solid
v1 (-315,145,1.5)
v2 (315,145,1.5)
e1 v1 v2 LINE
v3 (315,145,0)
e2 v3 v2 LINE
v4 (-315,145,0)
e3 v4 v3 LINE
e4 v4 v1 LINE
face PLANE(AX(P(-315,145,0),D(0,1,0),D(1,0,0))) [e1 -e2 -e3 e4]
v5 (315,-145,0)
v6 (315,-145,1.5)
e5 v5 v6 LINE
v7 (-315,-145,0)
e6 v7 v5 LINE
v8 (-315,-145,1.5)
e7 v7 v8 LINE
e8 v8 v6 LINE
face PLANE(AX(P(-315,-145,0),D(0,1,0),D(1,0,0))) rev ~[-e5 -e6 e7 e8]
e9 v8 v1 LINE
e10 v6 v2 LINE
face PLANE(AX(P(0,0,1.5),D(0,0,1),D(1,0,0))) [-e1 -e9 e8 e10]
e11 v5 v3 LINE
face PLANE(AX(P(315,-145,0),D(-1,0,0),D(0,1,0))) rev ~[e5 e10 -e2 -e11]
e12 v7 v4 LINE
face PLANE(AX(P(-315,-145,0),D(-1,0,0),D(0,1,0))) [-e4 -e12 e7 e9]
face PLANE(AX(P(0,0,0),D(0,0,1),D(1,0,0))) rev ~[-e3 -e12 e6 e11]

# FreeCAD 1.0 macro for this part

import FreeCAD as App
import Part
import Sketcher

doc = App.newDocument("Part")
body = doc.addObject("PartDesign::Body", "Body")

# Sketch on XY plane
sketch1 = body.newObject("Sketcher::SketchObject", "Sketch")
sketch1.AttachmentSupport = (doc.getObject("XY_Plane"), [""])
sketch1.MapMode = "FlatFace"
sketch1.addGeometry(Part.LineSegment(App.Vector(-315, 145, 0), App.Vector(-315, -145, 0)), False)
sketch1.addGeometry(Part.LineSegment(App.Vector(-315, -145, 0), App.Vector(315, -145, 0)), False)
sketch1.addGeometry(Part.LineSegment(App.Vector(315, -145, 0), App.Vector(315, 145, 0)), False)
sketch1.addGeometry(Part.LineSegment(App.Vector(315, 145, 0), App.Vector(-315, 145, 0)), False)
sketch1.addConstraint(Sketcher.Constraint("Coincident", 0, 2, 1, 1))
sketch1.addConstraint(Sketcher.Constraint("Coincident", 1, 2, 2, 1))
sketch1.addConstraint(Sketcher.Constraint("Coincident", 2, 2, 3, 1))
sketch1.addConstraint(Sketcher.Constraint("Coincident", 3, 2, 0, 1))
sketch1.addConstraint(Sketcher.Constraint("Vertical", 0))
sketch1.addConstraint(Sketcher.Constraint("Horizontal", 1))
sketch1.addConstraint(Sketcher.Constraint("Vertical", 2))
sketch1.addConstraint(Sketcher.Constraint("Horizontal", 3))
sketch1.addConstraint(Sketcher.Constraint("Symmetric", 0, 2, 2, 2, -1, 1))
sketch1.addConstraint(Sketcher.Constraint("DistanceX", 1, 1, 1, 2, 630.0))
sketch1.addConstraint(Sketcher.Constraint("DistanceY", 0, 2, 0, 1, 290.0))
pad1 = body.newObject("PartDesign::Pad", "Pad")
pad1.Profile = sketch1
pad1.Length = 1.5

doc.recompute()
